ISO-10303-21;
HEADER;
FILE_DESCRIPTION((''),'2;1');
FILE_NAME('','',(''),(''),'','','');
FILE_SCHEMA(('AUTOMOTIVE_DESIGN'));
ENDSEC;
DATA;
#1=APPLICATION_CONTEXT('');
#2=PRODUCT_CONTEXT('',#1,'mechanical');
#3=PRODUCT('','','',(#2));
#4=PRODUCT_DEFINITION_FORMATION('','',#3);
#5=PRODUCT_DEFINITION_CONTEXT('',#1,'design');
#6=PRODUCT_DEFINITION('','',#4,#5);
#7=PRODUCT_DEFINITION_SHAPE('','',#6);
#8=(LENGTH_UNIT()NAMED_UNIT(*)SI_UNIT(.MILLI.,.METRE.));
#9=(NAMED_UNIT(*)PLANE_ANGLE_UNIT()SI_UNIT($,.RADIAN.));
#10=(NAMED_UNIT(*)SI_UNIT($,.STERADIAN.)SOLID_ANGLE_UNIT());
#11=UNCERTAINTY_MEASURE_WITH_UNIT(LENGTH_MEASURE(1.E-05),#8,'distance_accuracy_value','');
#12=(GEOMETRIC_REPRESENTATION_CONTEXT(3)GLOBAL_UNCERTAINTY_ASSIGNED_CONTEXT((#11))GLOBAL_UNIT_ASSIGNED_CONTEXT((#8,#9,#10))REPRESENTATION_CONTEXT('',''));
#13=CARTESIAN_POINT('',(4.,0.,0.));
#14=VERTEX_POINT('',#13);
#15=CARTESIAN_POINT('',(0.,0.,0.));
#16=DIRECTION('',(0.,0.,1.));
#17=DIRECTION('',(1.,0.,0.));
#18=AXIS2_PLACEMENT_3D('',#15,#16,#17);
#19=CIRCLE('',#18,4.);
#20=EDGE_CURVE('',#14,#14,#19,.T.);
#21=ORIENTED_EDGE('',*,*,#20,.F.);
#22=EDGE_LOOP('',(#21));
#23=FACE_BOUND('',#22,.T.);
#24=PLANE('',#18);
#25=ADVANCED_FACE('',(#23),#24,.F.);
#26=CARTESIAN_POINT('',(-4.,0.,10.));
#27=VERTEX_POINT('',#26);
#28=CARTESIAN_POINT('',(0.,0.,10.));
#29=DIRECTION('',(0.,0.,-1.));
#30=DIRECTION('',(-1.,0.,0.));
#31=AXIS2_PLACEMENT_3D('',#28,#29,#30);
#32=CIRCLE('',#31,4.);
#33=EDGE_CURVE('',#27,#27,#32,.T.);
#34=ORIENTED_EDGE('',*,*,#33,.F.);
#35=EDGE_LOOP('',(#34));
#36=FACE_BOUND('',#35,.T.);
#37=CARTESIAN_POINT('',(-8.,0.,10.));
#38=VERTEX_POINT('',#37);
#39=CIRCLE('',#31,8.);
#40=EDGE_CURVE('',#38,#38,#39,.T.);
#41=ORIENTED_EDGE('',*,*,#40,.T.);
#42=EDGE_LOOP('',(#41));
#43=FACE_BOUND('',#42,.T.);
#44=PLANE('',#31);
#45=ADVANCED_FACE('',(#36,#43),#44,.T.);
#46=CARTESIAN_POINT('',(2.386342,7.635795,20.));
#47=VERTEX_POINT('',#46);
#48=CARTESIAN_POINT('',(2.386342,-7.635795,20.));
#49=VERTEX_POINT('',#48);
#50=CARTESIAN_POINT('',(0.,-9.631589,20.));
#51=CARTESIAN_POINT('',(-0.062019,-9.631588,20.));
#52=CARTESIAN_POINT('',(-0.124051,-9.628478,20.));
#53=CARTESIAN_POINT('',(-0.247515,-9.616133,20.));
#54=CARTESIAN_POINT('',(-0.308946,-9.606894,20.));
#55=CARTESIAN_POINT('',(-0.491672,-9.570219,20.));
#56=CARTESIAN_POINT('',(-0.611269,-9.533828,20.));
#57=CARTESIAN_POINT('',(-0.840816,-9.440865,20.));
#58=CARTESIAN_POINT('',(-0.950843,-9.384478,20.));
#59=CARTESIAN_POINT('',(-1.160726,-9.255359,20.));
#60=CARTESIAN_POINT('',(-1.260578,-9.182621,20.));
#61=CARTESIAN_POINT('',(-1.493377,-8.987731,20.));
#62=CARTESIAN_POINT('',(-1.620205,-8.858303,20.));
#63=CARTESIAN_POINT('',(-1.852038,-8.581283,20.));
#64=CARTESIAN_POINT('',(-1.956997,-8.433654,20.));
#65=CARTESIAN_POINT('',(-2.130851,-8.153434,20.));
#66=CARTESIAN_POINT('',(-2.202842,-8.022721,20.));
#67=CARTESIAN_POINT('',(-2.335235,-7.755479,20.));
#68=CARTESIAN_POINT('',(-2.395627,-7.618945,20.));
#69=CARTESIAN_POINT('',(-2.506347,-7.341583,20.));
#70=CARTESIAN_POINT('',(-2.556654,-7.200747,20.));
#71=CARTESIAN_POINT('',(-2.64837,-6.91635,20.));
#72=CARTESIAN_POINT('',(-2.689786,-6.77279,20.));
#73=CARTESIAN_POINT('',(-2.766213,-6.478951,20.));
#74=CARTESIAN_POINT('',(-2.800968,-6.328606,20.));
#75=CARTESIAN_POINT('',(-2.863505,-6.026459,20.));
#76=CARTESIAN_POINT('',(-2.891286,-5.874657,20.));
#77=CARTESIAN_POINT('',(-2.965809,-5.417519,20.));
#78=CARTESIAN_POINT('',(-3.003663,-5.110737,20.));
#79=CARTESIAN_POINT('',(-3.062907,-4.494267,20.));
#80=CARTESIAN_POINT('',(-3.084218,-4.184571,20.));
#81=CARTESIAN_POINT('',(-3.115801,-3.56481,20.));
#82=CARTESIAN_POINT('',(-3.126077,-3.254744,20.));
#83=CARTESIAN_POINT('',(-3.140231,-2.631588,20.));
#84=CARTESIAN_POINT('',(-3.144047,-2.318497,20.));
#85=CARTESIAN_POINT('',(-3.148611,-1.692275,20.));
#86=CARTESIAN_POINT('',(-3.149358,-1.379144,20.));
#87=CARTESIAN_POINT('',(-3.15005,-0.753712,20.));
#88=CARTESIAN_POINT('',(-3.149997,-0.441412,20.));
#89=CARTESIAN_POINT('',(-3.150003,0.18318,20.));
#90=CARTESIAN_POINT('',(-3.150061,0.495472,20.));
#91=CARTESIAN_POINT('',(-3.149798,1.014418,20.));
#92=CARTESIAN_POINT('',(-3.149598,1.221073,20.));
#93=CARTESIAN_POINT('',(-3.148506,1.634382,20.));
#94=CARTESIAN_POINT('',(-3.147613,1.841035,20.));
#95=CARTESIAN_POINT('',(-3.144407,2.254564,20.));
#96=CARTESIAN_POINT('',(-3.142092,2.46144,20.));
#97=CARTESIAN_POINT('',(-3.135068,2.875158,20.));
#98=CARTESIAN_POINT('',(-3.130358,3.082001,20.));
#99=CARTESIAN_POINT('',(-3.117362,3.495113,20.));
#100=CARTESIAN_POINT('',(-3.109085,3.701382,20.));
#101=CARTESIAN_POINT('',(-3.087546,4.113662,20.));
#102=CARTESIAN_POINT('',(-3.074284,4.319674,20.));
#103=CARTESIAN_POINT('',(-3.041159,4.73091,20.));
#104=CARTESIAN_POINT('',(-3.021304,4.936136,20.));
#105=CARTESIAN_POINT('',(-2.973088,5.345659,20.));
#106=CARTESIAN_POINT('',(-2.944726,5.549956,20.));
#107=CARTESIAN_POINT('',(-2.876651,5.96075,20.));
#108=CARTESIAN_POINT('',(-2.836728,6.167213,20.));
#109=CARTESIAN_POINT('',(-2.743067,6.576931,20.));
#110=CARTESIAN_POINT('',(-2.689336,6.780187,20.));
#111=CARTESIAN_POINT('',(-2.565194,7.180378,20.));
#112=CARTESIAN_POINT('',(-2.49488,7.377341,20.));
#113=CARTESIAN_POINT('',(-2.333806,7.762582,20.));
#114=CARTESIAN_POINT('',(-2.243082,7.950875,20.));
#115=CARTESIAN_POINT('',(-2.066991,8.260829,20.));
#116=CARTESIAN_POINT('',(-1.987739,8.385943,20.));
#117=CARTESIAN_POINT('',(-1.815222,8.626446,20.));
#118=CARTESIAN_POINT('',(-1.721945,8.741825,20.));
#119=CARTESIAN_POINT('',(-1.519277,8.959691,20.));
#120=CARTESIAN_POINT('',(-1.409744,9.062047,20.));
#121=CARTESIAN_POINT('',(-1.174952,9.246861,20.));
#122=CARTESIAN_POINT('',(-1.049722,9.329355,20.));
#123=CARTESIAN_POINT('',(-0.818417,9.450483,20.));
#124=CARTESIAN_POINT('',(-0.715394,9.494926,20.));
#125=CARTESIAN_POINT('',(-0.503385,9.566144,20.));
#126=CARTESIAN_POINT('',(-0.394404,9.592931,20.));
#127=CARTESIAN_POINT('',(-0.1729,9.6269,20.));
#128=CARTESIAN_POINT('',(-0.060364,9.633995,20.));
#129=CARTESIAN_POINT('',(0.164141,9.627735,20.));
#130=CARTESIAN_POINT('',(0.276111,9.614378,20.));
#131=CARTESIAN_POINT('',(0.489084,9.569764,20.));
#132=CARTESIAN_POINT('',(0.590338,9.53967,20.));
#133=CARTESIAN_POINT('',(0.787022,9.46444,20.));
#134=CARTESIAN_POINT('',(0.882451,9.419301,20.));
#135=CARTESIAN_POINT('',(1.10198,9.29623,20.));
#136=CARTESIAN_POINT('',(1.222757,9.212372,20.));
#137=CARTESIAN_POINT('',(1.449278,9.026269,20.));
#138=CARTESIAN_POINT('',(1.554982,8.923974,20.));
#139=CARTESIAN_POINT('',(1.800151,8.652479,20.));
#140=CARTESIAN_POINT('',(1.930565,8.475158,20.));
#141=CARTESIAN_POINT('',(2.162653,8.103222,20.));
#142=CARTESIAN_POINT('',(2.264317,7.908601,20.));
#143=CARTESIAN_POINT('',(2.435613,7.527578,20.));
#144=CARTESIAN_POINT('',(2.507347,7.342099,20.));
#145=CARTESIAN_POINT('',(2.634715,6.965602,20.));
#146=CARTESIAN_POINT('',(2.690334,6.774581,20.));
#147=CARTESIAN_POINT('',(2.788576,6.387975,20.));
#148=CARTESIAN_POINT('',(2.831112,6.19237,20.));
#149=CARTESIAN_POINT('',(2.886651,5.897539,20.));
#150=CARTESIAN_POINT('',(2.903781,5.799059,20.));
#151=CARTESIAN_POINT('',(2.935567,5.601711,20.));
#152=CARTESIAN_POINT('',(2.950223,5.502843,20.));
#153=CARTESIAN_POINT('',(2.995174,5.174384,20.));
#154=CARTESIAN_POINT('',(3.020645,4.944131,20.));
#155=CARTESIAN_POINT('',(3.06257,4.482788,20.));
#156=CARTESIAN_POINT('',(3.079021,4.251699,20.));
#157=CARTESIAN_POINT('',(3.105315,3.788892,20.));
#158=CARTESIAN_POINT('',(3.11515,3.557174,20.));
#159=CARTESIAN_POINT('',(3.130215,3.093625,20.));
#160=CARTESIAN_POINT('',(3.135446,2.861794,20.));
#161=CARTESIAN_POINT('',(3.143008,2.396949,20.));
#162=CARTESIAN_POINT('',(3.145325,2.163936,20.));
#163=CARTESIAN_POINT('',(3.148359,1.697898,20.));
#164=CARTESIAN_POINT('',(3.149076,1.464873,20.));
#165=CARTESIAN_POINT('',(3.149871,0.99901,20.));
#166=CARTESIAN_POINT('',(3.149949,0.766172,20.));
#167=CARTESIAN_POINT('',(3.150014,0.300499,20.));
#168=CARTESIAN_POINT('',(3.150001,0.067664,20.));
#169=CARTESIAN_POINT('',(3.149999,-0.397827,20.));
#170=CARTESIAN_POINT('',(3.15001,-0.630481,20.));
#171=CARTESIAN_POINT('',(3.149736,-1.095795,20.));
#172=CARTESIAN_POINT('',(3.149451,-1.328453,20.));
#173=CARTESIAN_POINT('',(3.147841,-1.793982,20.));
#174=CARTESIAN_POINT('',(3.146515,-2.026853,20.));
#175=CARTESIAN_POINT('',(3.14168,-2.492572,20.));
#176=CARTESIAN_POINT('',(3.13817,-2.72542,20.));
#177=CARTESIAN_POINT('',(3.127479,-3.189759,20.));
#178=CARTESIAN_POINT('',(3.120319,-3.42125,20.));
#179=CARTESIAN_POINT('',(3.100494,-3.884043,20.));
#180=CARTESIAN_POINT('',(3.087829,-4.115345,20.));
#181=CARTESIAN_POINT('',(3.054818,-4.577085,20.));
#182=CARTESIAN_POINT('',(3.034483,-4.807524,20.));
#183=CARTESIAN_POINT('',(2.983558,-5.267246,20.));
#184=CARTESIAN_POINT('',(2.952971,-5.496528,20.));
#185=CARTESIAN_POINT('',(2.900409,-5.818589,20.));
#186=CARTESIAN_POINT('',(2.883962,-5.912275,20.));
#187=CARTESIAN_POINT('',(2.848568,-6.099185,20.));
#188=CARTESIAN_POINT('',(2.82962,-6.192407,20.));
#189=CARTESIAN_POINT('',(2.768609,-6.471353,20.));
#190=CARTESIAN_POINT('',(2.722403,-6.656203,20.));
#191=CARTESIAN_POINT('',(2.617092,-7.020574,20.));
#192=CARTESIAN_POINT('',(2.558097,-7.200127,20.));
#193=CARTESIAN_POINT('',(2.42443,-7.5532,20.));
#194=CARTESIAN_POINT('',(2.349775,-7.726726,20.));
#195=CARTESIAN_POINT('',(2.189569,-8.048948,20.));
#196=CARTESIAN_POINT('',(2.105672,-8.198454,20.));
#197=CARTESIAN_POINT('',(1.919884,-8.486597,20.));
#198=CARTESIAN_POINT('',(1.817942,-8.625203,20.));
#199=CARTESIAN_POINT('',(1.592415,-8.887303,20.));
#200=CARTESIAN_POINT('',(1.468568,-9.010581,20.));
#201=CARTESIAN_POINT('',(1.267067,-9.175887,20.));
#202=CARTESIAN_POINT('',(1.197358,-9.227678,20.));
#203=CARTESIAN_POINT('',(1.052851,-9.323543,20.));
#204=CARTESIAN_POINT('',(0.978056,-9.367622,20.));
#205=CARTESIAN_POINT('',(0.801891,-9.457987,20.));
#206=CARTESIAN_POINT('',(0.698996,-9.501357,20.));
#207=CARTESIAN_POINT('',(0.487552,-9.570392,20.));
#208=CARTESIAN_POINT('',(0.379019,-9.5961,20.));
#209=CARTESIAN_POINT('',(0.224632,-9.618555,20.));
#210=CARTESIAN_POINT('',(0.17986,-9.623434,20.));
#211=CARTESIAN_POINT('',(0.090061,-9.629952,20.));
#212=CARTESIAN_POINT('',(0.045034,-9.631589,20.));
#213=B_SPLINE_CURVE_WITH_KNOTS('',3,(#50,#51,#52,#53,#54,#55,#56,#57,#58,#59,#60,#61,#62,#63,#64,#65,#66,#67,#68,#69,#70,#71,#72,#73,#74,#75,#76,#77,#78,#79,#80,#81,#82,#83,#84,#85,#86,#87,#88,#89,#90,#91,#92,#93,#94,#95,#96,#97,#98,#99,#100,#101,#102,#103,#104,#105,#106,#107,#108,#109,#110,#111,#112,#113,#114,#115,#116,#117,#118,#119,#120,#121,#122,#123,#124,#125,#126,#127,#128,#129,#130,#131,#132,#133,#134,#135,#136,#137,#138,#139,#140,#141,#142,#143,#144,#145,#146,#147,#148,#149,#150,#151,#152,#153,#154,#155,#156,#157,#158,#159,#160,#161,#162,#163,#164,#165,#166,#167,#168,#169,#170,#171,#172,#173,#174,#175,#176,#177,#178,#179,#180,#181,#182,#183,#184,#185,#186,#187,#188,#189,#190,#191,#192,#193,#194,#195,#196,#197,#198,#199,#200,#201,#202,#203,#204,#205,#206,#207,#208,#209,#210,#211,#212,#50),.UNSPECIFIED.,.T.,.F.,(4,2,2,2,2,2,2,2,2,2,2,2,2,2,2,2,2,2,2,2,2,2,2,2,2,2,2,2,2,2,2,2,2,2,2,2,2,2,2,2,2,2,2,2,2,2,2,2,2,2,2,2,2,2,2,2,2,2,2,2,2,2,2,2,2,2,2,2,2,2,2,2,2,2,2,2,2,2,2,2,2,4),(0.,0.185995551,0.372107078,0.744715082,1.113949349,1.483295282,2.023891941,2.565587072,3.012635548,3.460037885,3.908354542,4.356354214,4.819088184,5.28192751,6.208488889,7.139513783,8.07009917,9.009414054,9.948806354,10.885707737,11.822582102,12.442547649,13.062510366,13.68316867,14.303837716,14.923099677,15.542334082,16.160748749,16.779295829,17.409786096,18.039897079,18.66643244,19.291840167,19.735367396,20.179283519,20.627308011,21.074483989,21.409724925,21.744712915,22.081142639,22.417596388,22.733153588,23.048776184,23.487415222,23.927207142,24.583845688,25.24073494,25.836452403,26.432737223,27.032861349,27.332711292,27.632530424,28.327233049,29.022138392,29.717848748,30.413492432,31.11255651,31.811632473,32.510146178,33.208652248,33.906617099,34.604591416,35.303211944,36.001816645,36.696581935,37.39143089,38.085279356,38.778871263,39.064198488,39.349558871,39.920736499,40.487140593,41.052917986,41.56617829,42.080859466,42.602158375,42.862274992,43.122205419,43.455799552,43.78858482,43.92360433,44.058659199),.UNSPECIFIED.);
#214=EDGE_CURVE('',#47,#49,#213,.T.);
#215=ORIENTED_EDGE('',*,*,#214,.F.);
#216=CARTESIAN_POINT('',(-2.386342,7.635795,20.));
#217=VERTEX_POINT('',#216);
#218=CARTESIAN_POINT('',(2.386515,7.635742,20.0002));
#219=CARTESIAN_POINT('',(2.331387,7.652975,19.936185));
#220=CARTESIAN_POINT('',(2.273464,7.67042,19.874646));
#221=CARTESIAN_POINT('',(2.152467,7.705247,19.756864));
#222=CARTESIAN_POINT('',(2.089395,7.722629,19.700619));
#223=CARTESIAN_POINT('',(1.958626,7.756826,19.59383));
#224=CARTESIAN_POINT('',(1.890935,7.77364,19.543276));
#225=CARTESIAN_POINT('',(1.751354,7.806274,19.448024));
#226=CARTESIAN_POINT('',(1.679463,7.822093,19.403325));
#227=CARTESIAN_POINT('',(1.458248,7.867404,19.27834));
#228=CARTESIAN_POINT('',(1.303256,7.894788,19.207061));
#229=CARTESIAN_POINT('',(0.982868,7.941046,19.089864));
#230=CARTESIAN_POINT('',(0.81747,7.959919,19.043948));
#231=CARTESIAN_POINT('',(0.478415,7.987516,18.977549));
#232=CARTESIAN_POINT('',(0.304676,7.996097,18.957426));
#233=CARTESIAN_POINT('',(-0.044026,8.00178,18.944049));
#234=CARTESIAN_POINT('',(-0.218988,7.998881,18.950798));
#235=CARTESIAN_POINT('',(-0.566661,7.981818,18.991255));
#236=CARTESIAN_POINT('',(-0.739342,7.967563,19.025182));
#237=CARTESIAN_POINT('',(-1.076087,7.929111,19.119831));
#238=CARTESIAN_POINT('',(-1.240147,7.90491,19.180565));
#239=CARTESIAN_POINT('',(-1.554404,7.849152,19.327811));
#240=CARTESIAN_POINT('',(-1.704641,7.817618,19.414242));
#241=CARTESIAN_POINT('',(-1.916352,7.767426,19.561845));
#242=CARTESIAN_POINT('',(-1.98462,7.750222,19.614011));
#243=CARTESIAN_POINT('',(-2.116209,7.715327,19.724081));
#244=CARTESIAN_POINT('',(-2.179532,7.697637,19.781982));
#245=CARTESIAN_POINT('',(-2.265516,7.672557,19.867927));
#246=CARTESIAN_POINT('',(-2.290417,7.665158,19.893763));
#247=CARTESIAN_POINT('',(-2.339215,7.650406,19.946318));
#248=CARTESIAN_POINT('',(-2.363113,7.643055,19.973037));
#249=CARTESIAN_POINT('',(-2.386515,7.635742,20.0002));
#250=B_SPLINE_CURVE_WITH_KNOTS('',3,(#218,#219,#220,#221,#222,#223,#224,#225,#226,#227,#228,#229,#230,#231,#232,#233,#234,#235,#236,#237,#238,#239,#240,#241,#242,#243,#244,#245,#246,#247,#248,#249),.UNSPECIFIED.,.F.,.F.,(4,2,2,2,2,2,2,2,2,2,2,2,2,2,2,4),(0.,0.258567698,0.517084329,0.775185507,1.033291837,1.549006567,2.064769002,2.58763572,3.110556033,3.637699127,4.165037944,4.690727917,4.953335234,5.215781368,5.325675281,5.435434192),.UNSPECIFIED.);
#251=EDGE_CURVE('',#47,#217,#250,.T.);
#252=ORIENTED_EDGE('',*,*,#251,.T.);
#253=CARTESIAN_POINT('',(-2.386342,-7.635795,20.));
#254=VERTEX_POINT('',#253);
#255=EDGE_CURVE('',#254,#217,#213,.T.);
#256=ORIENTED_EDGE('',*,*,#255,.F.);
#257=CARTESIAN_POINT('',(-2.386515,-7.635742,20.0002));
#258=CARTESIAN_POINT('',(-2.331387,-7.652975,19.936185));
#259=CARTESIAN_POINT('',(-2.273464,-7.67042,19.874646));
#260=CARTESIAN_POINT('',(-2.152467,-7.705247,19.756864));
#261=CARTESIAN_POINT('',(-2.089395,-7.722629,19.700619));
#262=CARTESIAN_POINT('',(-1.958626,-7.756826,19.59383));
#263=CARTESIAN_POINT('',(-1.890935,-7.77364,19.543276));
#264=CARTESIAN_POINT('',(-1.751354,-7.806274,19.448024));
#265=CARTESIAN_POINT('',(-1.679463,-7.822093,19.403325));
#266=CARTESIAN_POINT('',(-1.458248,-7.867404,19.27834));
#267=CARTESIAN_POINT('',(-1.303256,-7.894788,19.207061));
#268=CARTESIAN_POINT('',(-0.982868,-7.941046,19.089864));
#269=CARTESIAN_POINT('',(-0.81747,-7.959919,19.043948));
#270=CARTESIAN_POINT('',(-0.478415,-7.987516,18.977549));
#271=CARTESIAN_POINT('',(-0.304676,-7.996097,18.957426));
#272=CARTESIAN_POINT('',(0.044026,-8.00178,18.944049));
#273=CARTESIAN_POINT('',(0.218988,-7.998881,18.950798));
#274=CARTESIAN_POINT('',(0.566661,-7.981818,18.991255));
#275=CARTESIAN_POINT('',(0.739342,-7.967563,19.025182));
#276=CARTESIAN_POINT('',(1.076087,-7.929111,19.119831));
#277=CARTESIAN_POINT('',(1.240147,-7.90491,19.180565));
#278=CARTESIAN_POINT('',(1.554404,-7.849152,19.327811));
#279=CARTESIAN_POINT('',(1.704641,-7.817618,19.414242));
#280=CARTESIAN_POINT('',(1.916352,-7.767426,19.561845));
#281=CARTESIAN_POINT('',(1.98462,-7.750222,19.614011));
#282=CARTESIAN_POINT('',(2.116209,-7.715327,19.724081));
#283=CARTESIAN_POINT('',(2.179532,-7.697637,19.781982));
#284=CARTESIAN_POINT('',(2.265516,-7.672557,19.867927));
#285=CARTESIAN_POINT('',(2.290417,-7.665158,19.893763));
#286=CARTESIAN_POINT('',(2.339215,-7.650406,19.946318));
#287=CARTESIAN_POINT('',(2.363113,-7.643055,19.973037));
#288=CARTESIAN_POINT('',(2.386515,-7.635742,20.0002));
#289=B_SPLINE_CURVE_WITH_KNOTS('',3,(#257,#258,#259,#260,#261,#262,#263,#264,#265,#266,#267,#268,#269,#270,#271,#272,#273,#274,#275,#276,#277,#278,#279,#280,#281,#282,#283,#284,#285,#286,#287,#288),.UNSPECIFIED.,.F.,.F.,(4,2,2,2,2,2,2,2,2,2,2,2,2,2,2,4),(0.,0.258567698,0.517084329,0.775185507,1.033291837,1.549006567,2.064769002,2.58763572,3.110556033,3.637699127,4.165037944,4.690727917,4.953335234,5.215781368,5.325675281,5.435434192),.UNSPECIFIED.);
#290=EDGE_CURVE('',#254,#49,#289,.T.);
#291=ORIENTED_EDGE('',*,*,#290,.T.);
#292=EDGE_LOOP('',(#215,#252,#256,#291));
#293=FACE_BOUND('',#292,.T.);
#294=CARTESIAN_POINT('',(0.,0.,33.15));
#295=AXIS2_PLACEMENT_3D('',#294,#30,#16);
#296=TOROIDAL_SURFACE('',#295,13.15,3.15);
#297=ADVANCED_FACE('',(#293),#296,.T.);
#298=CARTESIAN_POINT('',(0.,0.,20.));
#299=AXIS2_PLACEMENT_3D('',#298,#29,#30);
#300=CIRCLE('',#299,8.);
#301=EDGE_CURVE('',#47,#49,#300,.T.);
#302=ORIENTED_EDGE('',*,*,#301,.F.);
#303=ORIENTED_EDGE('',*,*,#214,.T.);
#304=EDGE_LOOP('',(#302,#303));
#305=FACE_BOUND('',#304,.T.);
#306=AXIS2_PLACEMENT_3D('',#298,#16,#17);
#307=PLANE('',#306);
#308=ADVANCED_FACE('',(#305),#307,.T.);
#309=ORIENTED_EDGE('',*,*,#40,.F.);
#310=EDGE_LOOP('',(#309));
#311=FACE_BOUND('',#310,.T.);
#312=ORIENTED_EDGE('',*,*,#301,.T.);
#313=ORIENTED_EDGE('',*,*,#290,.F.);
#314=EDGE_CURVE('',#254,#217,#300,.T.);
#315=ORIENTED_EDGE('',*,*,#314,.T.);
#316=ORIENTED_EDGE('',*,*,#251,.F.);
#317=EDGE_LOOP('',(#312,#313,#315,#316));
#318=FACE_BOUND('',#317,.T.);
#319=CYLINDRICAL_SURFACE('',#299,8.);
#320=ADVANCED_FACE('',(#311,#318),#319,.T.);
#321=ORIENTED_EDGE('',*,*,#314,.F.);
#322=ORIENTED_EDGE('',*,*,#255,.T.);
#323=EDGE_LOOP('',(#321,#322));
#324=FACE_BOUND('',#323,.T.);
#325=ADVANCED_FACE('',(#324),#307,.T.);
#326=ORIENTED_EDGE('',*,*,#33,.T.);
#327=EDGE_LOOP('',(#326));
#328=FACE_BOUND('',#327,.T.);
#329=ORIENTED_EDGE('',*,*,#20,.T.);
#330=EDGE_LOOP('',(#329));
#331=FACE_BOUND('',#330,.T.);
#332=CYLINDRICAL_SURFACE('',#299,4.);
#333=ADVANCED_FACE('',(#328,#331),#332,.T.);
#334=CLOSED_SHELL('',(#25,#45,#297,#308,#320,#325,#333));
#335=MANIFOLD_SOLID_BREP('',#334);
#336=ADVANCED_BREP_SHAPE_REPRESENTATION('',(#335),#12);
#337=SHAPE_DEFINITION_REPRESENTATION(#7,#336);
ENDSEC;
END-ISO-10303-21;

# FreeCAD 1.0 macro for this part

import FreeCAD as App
import Part
import Sketcher

V = App.Vector

doc = App.newDocument("Part")
params = doc.addObject("Spreadsheet::Sheet", "Params")
for row, (alias, value) in enumerate([
    ("sketch1_diameter", "8 mm"),
    ("pad1_length", "20 mm"),
    ("sketch2_diameter", "6.3 mm"),
    ("sketch3_diameter", "26.3 mm"),
    ("sketch4_diameter", "16 mm"),
    ("pad2_length", "10 mm"),
], start=1):
    params.set(f"A{row}", alias)
    params.set(f"B{row}", "=" + value)
    params.setAlias(f"B{row}", alias)

body = doc.addObject("PartDesign::Body", "Body")

# Sketch on XY plane
sketch1 = body.newObject("Sketcher::SketchObject", "Sketch")
sketch1.AttachmentSupport = (doc.getObject("XY_Plane"), [""])
sketch1.MapMode = "FlatFace"
sketch1.addGeometry(Part.Circle(V(0, 0, 0), V(0, 0, 1), 4), False)
sketch1.addConstraint([
    Sketcher.Constraint("Coincident", 0, 3, -1, 1),
    Sketcher.Constraint("Diameter", 0, 8.0),
])
sketch1.setExpression("Constraints[1]", "Params.sketch1_diameter")
pad1 = body.newObject("PartDesign::Pad", "Pad")
pad1.Profile = sketch1
pad1.setExpression("Length", "Params.pad1_length")

# Sketch on XZ plane
sketch2 = body.newObject("Sketcher::SketchObject", "Sketch001")
sketch2.AttachmentSupport = (doc.getObject("XZ_Plane"), [""])
sketch2.MapMode = "FlatFace"
sketch2.addGeometry(Part.Circle(V(0, 20, 0), V(0, 0, 1), 3.1), False)
sketch2.addConstraint([
    Sketcher.Constraint("PointOnObject", 0, 3, -2),
    Sketcher.Constraint("Diameter", 0, 6.3),
    Sketcher.Constraint("DistanceY", -1, 1, 0, 3, 20.0),
])
sketch2.setExpression("Constraints[1]", "Params.sketch2_diameter")

# Sketch on YZ plane
sketch3 = body.newObject("Sketcher::SketchObject", "Sketch002")
sketch3.AttachmentSupport = (doc.getObject("YZ_Plane"), [""])
sketch3.MapMode = "FlatFace"
sketch3.addGeometry(Part.Circle(V(0, 33, 0), V(0, 0, 1), 13), False)
sketch3.addConstraint([
    Sketcher.Constraint("PointOnObject", 0, 3, -2),
    Sketcher.Constraint("Diameter", 0, 26.3),
    Sketcher.Constraint("DistanceY", -1, 1, 0, 3, 33.15),
])
sketch3.setExpression("Constraints[1]", "Params.sketch3_diameter")
doc.recompute()

additivepipe = body.newObject("PartDesign::AdditivePipe", "AdditivePipe")
additivepipe.Profile = sketch2
additivepipe.Spine = (sketch3, ["Edge1"])

# Sketch on XY plane
sketch4 = body.newObject("Sketcher::SketchObject", "Sketch003")
sketch4.AttachmentSupport = (doc.getObject("XY_Plane"), [""])
sketch4.MapMode = "FlatFace"
sketch4.AttachmentOffset = App.Placement(V(0, 0, 15), App.Rotation())
sketch4.addGeometry(Part.Circle(V(0, 0, 0), V(0, 0, 1), 8), False)
sketch4.addConstraint([
    Sketcher.Constraint("Coincident", 0, 3, -1, 1),
    Sketcher.Constraint("Diameter", 0, 16.0),
])
sketch4.setExpression("Constraints[1]", "Params.sketch4_diameter")
pad2 = body.newObject("PartDesign::Pad", "Pad001")
pad2.Profile = sketch4
pad2.setExpression("Length", "Params.pad2_length")
pad2.Midplane = True

doc.recompute()
